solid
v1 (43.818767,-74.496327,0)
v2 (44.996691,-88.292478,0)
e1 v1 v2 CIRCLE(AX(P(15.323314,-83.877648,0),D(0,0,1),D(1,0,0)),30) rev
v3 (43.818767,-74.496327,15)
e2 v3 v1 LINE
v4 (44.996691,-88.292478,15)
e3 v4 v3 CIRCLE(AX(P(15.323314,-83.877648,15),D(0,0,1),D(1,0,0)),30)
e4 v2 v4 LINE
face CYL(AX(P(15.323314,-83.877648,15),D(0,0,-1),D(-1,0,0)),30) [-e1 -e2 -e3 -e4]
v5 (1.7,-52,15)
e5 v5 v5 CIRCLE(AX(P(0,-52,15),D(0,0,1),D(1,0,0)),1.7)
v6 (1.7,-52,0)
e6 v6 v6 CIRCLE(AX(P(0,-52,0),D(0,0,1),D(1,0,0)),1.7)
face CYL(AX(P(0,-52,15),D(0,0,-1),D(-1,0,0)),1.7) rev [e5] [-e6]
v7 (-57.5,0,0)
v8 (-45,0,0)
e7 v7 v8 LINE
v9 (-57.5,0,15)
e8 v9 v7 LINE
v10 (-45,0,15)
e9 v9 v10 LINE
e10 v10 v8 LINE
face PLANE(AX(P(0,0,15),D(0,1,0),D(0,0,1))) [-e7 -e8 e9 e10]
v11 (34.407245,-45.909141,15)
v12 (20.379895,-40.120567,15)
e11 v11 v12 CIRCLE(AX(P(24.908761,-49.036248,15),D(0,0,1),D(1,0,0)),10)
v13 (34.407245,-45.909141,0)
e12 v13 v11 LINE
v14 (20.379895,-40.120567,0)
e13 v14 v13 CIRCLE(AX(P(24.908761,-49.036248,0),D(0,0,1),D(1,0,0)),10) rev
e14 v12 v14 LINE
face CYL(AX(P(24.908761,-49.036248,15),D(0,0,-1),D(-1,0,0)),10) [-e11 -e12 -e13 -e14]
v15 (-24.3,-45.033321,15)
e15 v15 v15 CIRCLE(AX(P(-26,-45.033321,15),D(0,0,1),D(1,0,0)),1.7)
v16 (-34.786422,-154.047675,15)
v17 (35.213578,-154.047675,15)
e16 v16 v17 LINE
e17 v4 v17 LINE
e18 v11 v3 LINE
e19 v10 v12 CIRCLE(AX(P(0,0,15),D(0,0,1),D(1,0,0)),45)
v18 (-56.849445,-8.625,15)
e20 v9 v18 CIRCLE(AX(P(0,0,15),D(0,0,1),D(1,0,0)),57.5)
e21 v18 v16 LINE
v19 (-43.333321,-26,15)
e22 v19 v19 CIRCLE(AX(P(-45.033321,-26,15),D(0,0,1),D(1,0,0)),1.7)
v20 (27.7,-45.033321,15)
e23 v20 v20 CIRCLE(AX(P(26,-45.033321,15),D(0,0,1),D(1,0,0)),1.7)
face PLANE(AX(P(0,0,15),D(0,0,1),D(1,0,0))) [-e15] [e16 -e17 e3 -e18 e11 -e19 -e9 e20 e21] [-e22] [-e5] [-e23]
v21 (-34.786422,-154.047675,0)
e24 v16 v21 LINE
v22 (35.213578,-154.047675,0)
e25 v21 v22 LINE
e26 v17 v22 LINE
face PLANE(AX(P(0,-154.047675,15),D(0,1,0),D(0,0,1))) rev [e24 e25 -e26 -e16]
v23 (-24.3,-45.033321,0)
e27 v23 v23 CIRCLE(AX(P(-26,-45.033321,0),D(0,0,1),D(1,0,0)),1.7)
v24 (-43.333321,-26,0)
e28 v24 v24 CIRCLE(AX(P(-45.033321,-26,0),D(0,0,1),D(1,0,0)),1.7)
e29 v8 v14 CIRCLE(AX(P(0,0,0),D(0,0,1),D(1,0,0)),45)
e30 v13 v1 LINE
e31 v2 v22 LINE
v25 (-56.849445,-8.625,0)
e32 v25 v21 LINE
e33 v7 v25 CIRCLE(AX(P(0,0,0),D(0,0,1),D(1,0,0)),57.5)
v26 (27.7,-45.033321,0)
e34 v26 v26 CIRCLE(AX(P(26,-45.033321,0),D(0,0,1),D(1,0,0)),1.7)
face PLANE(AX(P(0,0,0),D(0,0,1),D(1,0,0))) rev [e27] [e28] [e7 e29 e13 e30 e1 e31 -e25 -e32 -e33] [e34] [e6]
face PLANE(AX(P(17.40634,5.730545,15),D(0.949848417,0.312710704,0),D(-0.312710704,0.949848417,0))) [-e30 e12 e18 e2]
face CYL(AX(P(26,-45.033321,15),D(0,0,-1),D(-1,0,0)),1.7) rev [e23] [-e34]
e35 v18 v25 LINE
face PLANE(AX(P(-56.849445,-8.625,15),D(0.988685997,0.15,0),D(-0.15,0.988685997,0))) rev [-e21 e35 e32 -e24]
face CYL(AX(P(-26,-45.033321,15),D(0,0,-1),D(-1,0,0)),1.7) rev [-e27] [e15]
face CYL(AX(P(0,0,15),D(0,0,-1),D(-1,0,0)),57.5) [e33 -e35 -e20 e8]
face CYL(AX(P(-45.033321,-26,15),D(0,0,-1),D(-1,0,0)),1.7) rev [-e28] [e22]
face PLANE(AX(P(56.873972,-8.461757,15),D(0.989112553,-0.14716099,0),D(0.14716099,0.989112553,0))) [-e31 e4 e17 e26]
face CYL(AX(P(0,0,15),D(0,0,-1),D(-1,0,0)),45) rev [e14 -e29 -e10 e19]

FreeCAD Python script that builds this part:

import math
import FreeCAD as App
import Part
import Sketcher
from FreeCAD import Vector
Q = App.Units.Quantity


def edges_at(feature, points):
    """Names of the edges that pass closest to the given points."""
    edges = feature.Shape.Edges
    near = lambda p: min(range(len(edges)), key=lambda i: edges[i].distToShape(Part.Vertex(*p))[0])
    return sorted({f"Edge{near(p) + 1}" for p in points})

doc = App.newDocument("Part")
body = doc.addObject("PartDesign::Body", "Body")

sketch1 = doc.addObject("Sketcher::SketchObject", "Sketch")
body.addObject(sketch1)
sketch1.AttachmentSupport = (doc.XY_Plane, [""])
sketch1.MapMode = "FlatFace"
sketch1.addGeometry(Part.LineSegment(Vector(-45, 0, 0), Vector(-57.5, 0, 0)), False)
sketch1.addGeometry(Part.ArcOfCircle(Part.Circle(Vector(0, 0, 0), Vector(0, 0, 1), 57.5), math.radians(-180), math.radians(-171.373073)), False)
sketch1.addGeometry(Part.LineSegment(Vector(-56.849445, -8.625, 0), Vector(-34.786422, -154.047675, 0)), False)
sketch1.addGeometry(Part.LineSegment(Vector(-34.786422, -154.047675, 0), Vector(35.213578, -154.047675, 0)), False)
sketch1.addGeometry(Part.LineSegment(Vector(35.213578, -154.047675, 0), Vector(46.043775, -81.254716, 0)), False)
sketch1.addGeometry(Part.LineSegment(Vector(46.043775, -81.254716, 0), Vector(30.258636, -33.307881, 0)), False)
sketch1.addGeometry(Part.ArcOfCircle(Part.Circle(Vector(0, 0, 0), Vector(0, 0, 1), 45), math.radians(180), math.radians(312.253664)), False)
sketch1.addGeometry(Part.Circle(Vector(0, -52, 0), Vector(0, 0, 1), 1.7), False)
sketch1.addGeometry(Part.Circle(Vector(26, -45.033321, 0), Vector(0, 0, 1), 1.7), False)
sketch1.addGeometry(Part.Circle(Vector(-26, -45.033321, 0), Vector(0, 0, 1), 1.7), False)
sketch1.addGeometry(Part.Circle(Vector(-45.033321, -26, 0), Vector(0, 0, 1), 1.7), False)
sketch1.addConstraint(Sketcher.Constraint("Coincident", 0, 2, 1, 1))
sketch1.addConstraint(Sketcher.Constraint("Tangent", 1, 2, 2, 1))
sketch1.addConstraint(Sketcher.Constraint("Coincident", 2, 2, 3, 1))
sketch1.addConstraint(Sketcher.Constraint("Coincident", 3, 2, 4, 1))
sketch1.addConstraint(Sketcher.Constraint("Coincident", 4, 2, 5, 1))
sketch1.addConstraint(Sketcher.Constraint("Coincident", 5, 2, 6, 2))
sketch1.addConstraint(Sketcher.Constraint("Coincident", 6, 1, 0, 1))
sketch1.addConstraint(Sketcher.Constraint("Horizontal", 0))
sketch1.addConstraint(Sketcher.Constraint("Horizontal", 3))
sketch1.addConstraint(Sketcher.Constraint("Coincident", 1, 3, -1, 1))
sketch1.addConstraint(Sketcher.Constraint("Coincident", 6, 3, -1, 1))
sketch1.addConstraint(Sketcher.Constraint("Equal", 7, 8))
sketch1.addConstraint(Sketcher.Constraint("Equal", 8, 9))
sketch1.addConstraint(Sketcher.Constraint("Equal", 9, 10))
sketch1.addConstraint(Sketcher.Constraint("Symmetric", 8, 3, 9, 3, -2))
sketch1.addConstraint(Sketcher.Constraint("PointOnObject", 7, 3, -2))
sketch1.addConstraint(Sketcher.Constraint("PointOnObject", 0, 2, -1))
sketch1.addConstraint(Sketcher.Constraint("Radius", 6, Q("45 mm")))
sketch1.addConstraint(Sketcher.Constraint("Diameter", 7, Q("3.4 mm")))
sketch1.addConstraint(Sketcher.Constraint("Radius", 1, Q("57.5 mm")))
sketch1.addConstraint(Sketcher.Constraint("DistanceX", 3, 1, 3, 2, Q("70 mm")))
sketch1.addConstraint(Sketcher.Constraint("DistanceY", 7, 3, -1, 1, Q("52 mm")))
sketch1.addConstraint(Sketcher.Constraint("DistanceX", -1, 1, 8, 3, Q("26 mm")))
sketch1.addConstraint(Sketcher.Constraint("DistanceY", 10, 3, -1, 1, Q("26 mm")))
sketch1.addConstraint(Sketcher.Constraint("DistanceY", 1, 2, -1, 1, Q("8.625 mm")))
sketch1.addConstraint(Sketcher.Constraint("DistanceX", 10, 3, 2, 2, Q("10.246899 mm")))
sketch1.addConstraint(Sketcher.Constraint("DistanceY", 8, 3, -1, 1, Q("45.033321 mm")))
sketch1.addConstraint(Sketcher.Constraint("DistanceX", 10, 3, -1, 1, Q("45.033321 mm")))
sketch1.addConstraint(Sketcher.Constraint("DistanceY", 5, 2, -1, 1, Q("33.307881 mm")))
sketch1.addConstraint(Sketcher.Constraint("DistanceY", 3, 2, 4, 2, Q("72.792959 mm")))
sketch1.addConstraint(Sketcher.Constraint("DistanceX", 5, 2, 4, 2, Q("15.785138 mm")))
pad1 = doc.addObject("PartDesign::Pad", "Pad")
body.addObject(pad1)
pad1.Profile = sketch1
pad1.Length = 15
doc.recompute()

fillet = doc.addObject("PartDesign::Fillet", "Fillet")
body.addObject(fillet)
fillet.Base = (pad1, edges_at(pad1, [(30.259, -33.308, 7.5)]))
fillet.Radius = 10
doc.recompute()

fillet2 = doc.addObject("PartDesign::Fillet", "Fillet001")
body.addObject(fillet2)
fillet2.Base = (fillet, edges_at(fillet, [(46.044, -81.255, 7.5)]))
fillet2.Radius = 30

doc.recompute()
